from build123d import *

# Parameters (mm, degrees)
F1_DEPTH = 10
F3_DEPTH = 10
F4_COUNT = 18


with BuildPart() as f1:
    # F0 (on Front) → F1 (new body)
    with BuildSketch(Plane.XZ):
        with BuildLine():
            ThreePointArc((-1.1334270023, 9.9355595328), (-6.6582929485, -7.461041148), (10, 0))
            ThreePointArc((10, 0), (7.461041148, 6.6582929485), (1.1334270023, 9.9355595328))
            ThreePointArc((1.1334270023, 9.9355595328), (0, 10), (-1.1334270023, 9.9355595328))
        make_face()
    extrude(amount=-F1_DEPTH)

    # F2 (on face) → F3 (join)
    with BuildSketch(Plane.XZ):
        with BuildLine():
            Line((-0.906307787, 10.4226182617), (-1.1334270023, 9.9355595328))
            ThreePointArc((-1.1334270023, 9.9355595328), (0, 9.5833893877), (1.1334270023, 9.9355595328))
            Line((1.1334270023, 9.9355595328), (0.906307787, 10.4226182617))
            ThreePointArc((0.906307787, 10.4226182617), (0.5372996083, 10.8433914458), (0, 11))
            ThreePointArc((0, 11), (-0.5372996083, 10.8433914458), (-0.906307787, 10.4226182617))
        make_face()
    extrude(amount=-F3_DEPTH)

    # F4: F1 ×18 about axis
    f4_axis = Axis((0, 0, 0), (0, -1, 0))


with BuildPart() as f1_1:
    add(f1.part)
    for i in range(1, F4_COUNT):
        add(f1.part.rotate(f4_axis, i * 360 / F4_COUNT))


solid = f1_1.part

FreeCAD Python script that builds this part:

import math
import FreeCAD as App
import Part
import Sketcher
Q = App.Units.Quantity

doc = App.newDocument("Part")
body = doc.addObject("PartDesign::Body", "Body")

sketch1 = body.newObject("Sketcher::SketchObject", "Sketch")
sketch1.AttachmentSupport = (doc.getObject("XZ_Plane"), [""])
sketch1.MapMode = "FlatFace"
sketch1.addGeometry([
    Part.ArcOfCircle(Part.Circle(App.Vector(0, 0, 0), App.Vector(0, 0, 1), 10), math.radians(97), math.radians(360)),
    Part.ArcOfCircle(Part.Circle(App.Vector(0, 0, 0), App.Vector(0, 0, 1), 10), math.radians(0), math.radians(83)),
    Part.ArcOfCircle(Part.Circle(App.Vector(0, 0, 0), App.Vector(0, 0, 1), 10), math.radians(83.49), math.radians(96.51)),
], False)
sketch1.addConstraint([
    Sketcher.Constraint("Tangent", 0, 2, 1, 1),
    Sketcher.Constraint("Tangent", 1, 2, 2, 1),
    Sketcher.Constraint("Tangent", 2, 2, 0, 1),
    Sketcher.Constraint("Coincident", 0, 3, -1, 1),
    Sketcher.Constraint("PointOnObject", 0, 2, -1),
    Sketcher.Constraint("Horizontal", 1, 2, 2, 2),
    Sketcher.Constraint("Radius", 0, Q("10 mm")),
    Sketcher.Constraint("DistanceY", -1, 1, 1, 2, Q("9.93556 mm")),
])
pad1 = body.newObject("PartDesign::Pad", "Pad")
pad1.Profile = sketch1
pad1.Length = 10
pad1.Reversed = True

sketch2 = body.newObject("Sketcher::SketchObject", "Sketch001")
sketch2.AttachmentSupport = (doc.getObject("XZ_Plane"), [""])
sketch2.MapMode = "FlatFace"
sketch2.addGeometry([
    Part.LineSegment(App.Vector(-0.9, 10.4, 0), App.Vector(-1.1, 9.9, 0)),
    Part.ArcOfCircle(Part.Circle(App.Vector(0, 11.6, 0), App.Vector(0, 0, 1), 2), math.radians(-125), math.radians(-55)),
    Part.LineSegment(App.Vector(1.1, 9.9, 0), App.Vector(0.9, 10.4, 0)),
    Part.ArcOfCircle(Part.Circle(App.Vector(0, 10, 0), App.Vector(0, 0, 1), 1), math.radians(25), math.radians(90)),
    Part.ArcOfCircle(Part.Circle(App.Vector(0, 10, 0), App.Vector(0, 0, 1), 1), math.radians(90), math.radians(155)),
], False)
sketch2.addConstraint([
    Sketcher.Constraint("Coincident", 0, 2, 1, 1),
    Sketcher.Constraint("Coincident", 1, 2, 2, 1),
    Sketcher.Constraint("Tangent", 2, 2, 3, 1),
    Sketcher.Constraint("Tangent", 3, 2, 4, 1),
    Sketcher.Constraint("Tangent", 4, 2, 0, 1),
    Sketcher.Constraint("Equal", 3, 4),
    Sketcher.Constraint("Symmetric", 0, 2, 1, 2, -2),
    Sketcher.Constraint("PointOnObject", 3, 3, -2),
    Sketcher.Constraint("PointOnObject", 3, 2, -2),
    Sketcher.Constraint("Radius", 1, Q("2 mm")),
    Sketcher.Constraint("Radius", 3, Q("1 mm")),
    Sketcher.Constraint("Angle", 0, Q("-115 deg")),
    Sketcher.Constraint("DistanceY", -1, 1, 3, 3, Q("10 mm")),
    Sketcher.Constraint("Distance", 0, Q("0.53741 mm")),
])
pad2 = body.newObject("PartDesign::Pad", "Pad001")
pad2.Profile = sketch2
pad2.Length = 10
pad2.Reversed = True
body2 = doc.addObject("PartDesign::Body", "Body001")
doc.recompute()

body2.BaseFeature = body
doc.recompute()

body3 = doc.addObject("PartDesign::Body", "Body002")
body3.BaseFeature = body
body3.Placement = App.Placement(App.Vector(0, 0, 0), App.Rotation(App.Vector(0, -1, 0), 20))
boolean = body2.newObject("PartDesign::Boolean", "Boolean")
boolean.Type = "Fuse"
boolean.addObjects([body3])
doc.recompute()

body4 = doc.addObject("PartDesign::Body", "Body003")
body4.BaseFeature = body
body4.Placement = App.Placement(App.Vector(0, 0, 0), App.Rotation(App.Vector(0, -1, 0), 40))
boolean2 = body2.newObject("PartDesign::Boolean", "Boolean001")
boolean2.Type = "Fuse"
boolean2.addObjects([body4])
doc.recompute()

body5 = doc.addObject("PartDesign::Body", "Body004")
body5.BaseFeature = body
body5.Placement = App.Placement(App.Vector(0, 0, 0), App.Rotation(App.Vector(0, -1, 0), 60))
boolean3 = body2.newObject("PartDesign::Boolean", "Boolean002")
boolean3.Type = "Fuse"
boolean3.addObjects([body5])
doc.recompute()

body6 = doc.addObject("PartDesign::Body", "Body005")
body6.BaseFeature = body
body6.Placement = App.Placement(App.Vector(0, 0, 0), App.Rotation(App.Vector(0, -1, 0), 80))
boolean4 = body2.newObject("PartDesign::Boolean", "Boolean003")
boolean4.Type = "Fuse"
boolean4.addObjects([body6])
doc.recompute()

body7 = doc.addObject("PartDesign::Body", "Body006")
body7.BaseFeature = body
body7.Placement = App.Placement(App.Vector(0, 0, 0), App.Rotation(App.Vector(0, -1, 0), 100))
boolean5 = body2.newObject("PartDesign::Boolean", "Boolean004")
boolean5.Type = "Fuse"
boolean5.addObjects([body7])
doc.recompute()

body8 = doc.addObject("PartDesign::Body", "Body007")
body8.BaseFeature = body
body8.Placement = App.Placement(App.Vector(0, 0, 0), App.Rotation(App.Vector(0, -1, 0), 120))
boolean6 = body2.newObject("PartDesign::Boolean", "Boolean005")
boolean6.Type = "Fuse"
boolean6.addObjects([body8])
doc.recompute()

body9 = doc.addObject("PartDesign::Body", "Body008")
body9.BaseFeature = body
body9.Placement = App.Placement(App.Vector(0, 0, 0), App.Rotation(App.Vector(0, -1, 0), 140))
boolean7 = body2.newObject("PartDesign::Boolean", "Boolean006")
boolean7.Type = "Fuse"
boolean7.addObjects([body9])
doc.recompute()

body10 = doc.addObject("PartDesign::Body", "Body009")
body10.BaseFeature = body
body10.Placement = App.Placement(App.Vector(0, 0, 0), App.Rotation(App.Vector(0, -1, 0), 160))
boolean8 = body2.newObject("PartDesign::Boolean", "Boolean007")
boolean8.Type = "Fuse"
boolean8.addObjects([body10])
doc.recompute()

body11 = doc.addObject("PartDesign::Body", "Body010")
body11.BaseFeature = body
body11.Placement = App.Placement(App.Vector(0, 0, 0), App.Rotation(App.Vector(0, -1, 0), 180))
boolean9 = body2.newObject("PartDesign::Boolean", "Boolean008")
boolean9.Type = "Fuse"
boolean9.addObjects([body11])
doc.recompute()

body12 = doc.addObject("PartDesign::Body", "Body011")
body12.BaseFeature = body
body12.Placement = App.Placement(App.Vector(0, 0, 0), App.Rotation(App.Vector(0, -1, 0), 200))
boolean10 = body2.newObject("PartDesign::Boolean", "Boolean009")
boolean10.Type = "Fuse"
boolean10.addObjects([body12])
doc.recompute()

body13 = doc.addObject("PartDesign::Body", "Body012")
body13.BaseFeature = body
body13.Placement = App.Placement(App.Vector(0, 0, 0), App.Rotation(App.Vector(0, -1, 0), 220))
boolean11 = body2.newObject("PartDesign::Boolean", "Boolean010")
boolean11.Type = "Fuse"
boolean11.addObjects([body13])
doc.recompute()

body14 = doc.addObject("PartDesign::Body", "Body013")
body14.BaseFeature = body
body14.Placement = App.Placement(App.Vector(0, 0, 0), App.Rotation(App.Vector(0, -1, 0), 240))
boolean12 = body2.newObject("PartDesign::Boolean", "Boolean011")
boolean12.Type = "Fuse"
boolean12.addObjects([body14])
doc.recompute()

body15 = doc.addObject("PartDesign::Body", "Body014")
body15.BaseFeature = body
body15.Placement = App.Placement(App.Vector(0, 0, 0), App.Rotation(App.Vector(0, -1, 0), 260))
boolean13 = body2.newObject("PartDesign::Boolean", "Boolean012")
boolean13.Type = "Fuse"
boolean13.addObjects([body15])
doc.recompute()

body16 = doc.addObject("PartDesign::Body", "Body015")
body16.BaseFeature = body
body16.Placement = App.Placement(App.Vector(0, 0, 0), App.Rotation(App.Vector(0, -1, 0), 280))
boolean14 = body2.newObject("PartDesign::Boolean", "Boolean013")
boolean14.Type = "Fuse"
boolean14.addObjects([body16])
doc.recompute()

body17 = doc.addObject("PartDesign::Body", "Body016")
body17.BaseFeature = body
body17.Placement = App.Placement(App.Vector(0, 0, 0), App.Rotation(App.Vector(0, -1, 0), 300))
boolean15 = body2.newObject("PartDesign::Boolean", "Boolean014")
boolean15.Type = "Fuse"
boolean15.addObjects([body17])
doc.recompute()

body18 = doc.addObject("PartDesign::Body", "Body017")
body18.BaseFeature = body
body18.Placement = App.Placement(App.Vector(0, 0, 0), App.Rotation(App.Vector(0, -1, 0), 320))
boolean16 = body2.newObject("PartDesign::Boolean", "Boolean015")
boolean16.Type = "Fuse"
boolean16.addObjects([body18])
doc.recompute()

body.Placement = App.Placement(App.Vector(0, 0, 0), App.Rotation(App.Vector(0, -1, 0), 340))
boolean17 = body2.newObject("PartDesign::Boolean", "Boolean016")
boolean17.Type = "Fuse"
boolean17.addObjects([body])

doc.recompute()
